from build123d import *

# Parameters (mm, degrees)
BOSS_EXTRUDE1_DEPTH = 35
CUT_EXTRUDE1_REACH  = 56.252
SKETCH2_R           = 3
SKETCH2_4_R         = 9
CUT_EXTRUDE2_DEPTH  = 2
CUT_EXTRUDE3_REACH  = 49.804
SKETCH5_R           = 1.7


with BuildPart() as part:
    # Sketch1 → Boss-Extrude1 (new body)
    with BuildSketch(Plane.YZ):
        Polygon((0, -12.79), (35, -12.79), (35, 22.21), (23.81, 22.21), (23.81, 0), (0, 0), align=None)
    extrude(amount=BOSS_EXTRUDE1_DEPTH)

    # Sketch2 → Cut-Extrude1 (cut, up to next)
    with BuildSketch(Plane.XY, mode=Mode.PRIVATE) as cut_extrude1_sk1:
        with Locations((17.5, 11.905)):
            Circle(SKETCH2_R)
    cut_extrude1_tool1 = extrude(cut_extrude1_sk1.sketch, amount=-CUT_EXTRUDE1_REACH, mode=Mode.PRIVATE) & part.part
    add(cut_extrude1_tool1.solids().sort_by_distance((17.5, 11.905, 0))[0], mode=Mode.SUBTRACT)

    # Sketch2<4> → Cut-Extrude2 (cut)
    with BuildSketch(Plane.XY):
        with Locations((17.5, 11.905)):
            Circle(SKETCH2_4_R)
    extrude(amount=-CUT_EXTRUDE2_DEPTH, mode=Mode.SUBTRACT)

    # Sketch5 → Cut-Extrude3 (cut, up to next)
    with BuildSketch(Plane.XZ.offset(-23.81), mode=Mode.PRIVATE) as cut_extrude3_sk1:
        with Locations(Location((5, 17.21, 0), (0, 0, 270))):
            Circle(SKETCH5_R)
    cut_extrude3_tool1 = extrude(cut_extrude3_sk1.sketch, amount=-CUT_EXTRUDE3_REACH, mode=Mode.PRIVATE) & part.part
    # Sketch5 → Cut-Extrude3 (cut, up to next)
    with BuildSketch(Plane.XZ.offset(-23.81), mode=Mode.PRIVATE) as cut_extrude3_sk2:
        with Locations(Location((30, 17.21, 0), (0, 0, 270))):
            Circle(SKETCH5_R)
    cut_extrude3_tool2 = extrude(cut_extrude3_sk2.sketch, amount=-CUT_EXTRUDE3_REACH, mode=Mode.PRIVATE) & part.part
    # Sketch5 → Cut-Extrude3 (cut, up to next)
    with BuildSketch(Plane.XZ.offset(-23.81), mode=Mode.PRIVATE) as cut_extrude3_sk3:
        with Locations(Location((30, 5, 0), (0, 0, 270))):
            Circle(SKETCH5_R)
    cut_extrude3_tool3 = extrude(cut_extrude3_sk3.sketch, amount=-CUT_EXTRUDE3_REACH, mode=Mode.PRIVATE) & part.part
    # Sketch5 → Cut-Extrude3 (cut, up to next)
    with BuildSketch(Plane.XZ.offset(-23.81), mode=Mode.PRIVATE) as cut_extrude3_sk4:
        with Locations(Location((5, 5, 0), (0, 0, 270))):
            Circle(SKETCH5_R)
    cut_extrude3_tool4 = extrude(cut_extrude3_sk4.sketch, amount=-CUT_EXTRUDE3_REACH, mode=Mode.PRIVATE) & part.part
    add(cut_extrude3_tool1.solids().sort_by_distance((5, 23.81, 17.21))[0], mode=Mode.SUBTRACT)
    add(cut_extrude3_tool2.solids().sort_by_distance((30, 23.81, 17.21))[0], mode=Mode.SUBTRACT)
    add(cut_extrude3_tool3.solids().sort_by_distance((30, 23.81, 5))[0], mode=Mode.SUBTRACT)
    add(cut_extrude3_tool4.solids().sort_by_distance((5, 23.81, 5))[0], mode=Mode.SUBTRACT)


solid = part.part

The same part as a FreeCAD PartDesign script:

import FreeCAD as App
import Part
import Sketcher

V = App.Vector

doc = App.newDocument("Part")
params = doc.addObject("Spreadsheet::Sheet", "Params")
for row, (alias, value) in enumerate([
    ("sketch1_width", "35 mm"),
    ("sketch1_width2", "11.19 mm"),
    ("sketch1_height", "22.21 mm"),
    ("pad1_length", "35 mm"),
    ("sketch2_diameter", "6 mm"),
    ("sketch3_diameter", "18 mm"),
    ("pocket2_length", "2 mm"),
    ("sketch4_diameter", "3.4 mm"),
    ("sketch5_diameter", "3.4 mm"),
    ("sketch6_diameter", "3.4 mm"),
    ("sketch7_diameter", "3.4 mm"),
], start=1):
    params.set(f"A{row}", alias)
    params.set(f"B{row}", "=" + value)
    params.setAlias(f"B{row}", alias)

body = doc.addObject("PartDesign::Body", "Body")

# Sketch on YZ plane
sketch1 = doc.addObject("Sketcher::SketchObject", "Sketch")
body.addObject(sketch1)
sketch1.AttachmentSupport = (doc.YZ_Plane, [""])
sketch1.MapMode = "FlatFace"
sketch1.addGeometry([
    Part.LineSegment(V(0, -12.79, 0), V(35, -12.79, 0)),  # 0
    Part.LineSegment(V(35, -12.79, 0), V(35, 22.21, 0)),  # 1
    Part.LineSegment(V(35, 22.21, 0), V(23.81, 22.21, 0)),  # 2
    Part.LineSegment(V(23.81, 22.21, 0), V(23.81, 0, 0)),  # 3
    Part.LineSegment(V(23.81, 0, 0), V(0, 0, 0)),  # 4
    Part.LineSegment(V(0, 0, 0), V(0, -12.79, 0)),  # 5
], False)
sketch1.addConstraint([
    Sketcher.Constraint("Coincident", 0, 2, 1, 1),
    Sketcher.Constraint("Coincident", 1, 2, 2, 1),
    Sketcher.Constraint("Coincident", 2, 2, 3, 1),
    Sketcher.Constraint("Coincident", 3, 2, 4, 1),
    Sketcher.Constraint("Coincident", 4, 2, 5, 1),
    Sketcher.Constraint("Coincident", 5, 2, 0, 1),
    Sketcher.Constraint("Horizontal", 0),
    Sketcher.Constraint("Vertical", 1),
    Sketcher.Constraint("Horizontal", 2),
    Sketcher.Constraint("Vertical", 3),
    Sketcher.Constraint("Horizontal", 4),
    Sketcher.Constraint("Vertical", 5),
    Sketcher.Constraint("Coincident", 4, 2, -1, 1),
    Sketcher.Constraint("Equal", 0, 1),
    Sketcher.Constraint("DistanceX", 0, 1, 0, 2, 35.0),
    Sketcher.Constraint("DistanceX", 2, 2, 2, 1, 11.19),
    Sketcher.Constraint("DistanceY", 3, 2, 3, 1, 22.21),
])
sketch1.setExpression("Constraints[14]", "Params.sketch1_width")
sketch1.setExpression("Constraints[15]", "Params.sketch1_width2")
sketch1.setExpression("Constraints[16]", "Params.sketch1_height")
pad1 = doc.addObject("PartDesign::Pad", "Pad")
body.addObject(pad1)
pad1.Profile = sketch1
pad1.setExpression("Length", "Params.pad1_length")

# Sketch on XY plane
sketch2 = doc.addObject("Sketcher::SketchObject", "Sketch001")
body.addObject(sketch2)
sketch2.AttachmentSupport = (doc.XY_Plane, [""])
sketch2.MapMode = "FlatFace"
sketch2.addGeometry(Part.Circle(V(17.5, 11.905, 0), V(0, 0, 1), 3), False)
sketch2.addConstraint([
    Sketcher.Constraint("Diameter", 0, 6.0),
    Sketcher.Constraint("DistanceX", -1, 1, 0, 3, 17.5),
    Sketcher.Constraint("DistanceY", -1, 1, 0, 3, 11.905),
])
sketch2.setExpression("Constraints[0]", "Params.sketch2_diameter")
pocket1 = doc.addObject("PartDesign::Pocket", "Pocket")
body.addObject(pocket1)
pocket1.Profile = sketch2
pocket1.Type = "UpToFirst"

# Sketch on XY plane
sketch3 = doc.addObject("Sketcher::SketchObject", "Sketch002")
body.addObject(sketch3)
sketch3.AttachmentSupport = (doc.XY_Plane, [""])
sketch3.MapMode = "FlatFace"
sketch3.addGeometry(Part.Circle(V(17.5, 11.905, 0), V(0, 0, 1), 9), False)
sketch3.addConstraint([
    Sketcher.Constraint("Diameter", 0, 18.0),
    Sketcher.Constraint("DistanceX", -1, 1, 0, 3, 17.5),
    Sketcher.Constraint("DistanceY", -1, 1, 0, 3, 11.905),
])
sketch3.setExpression("Constraints[0]", "Params.sketch3_diameter")
pocket2 = doc.addObject("PartDesign::Pocket", "Pocket001")
body.addObject(pocket2)
pocket2.Profile = sketch3
pocket2.setExpression("Length", "Params.pocket2_length")

# Sketch on XZ plane
sketch4 = doc.addObject("Sketcher::SketchObject", "Sketch003")
body.addObject(sketch4)
sketch4.AttachmentSupport = (doc.XZ_Plane, [""])
sketch4.MapMode = "FlatFace"
sketch4.AttachmentOffset = App.Placement(V(0, 0, -23.81), App.Rotation())
sketch4.addGeometry(Part.Circle(V(5, 17.21, 0), V(0, 0, 1), 1.7), False)
sketch4.addConstraint([
    Sketcher.Constraint("Diameter", 0, 3.4),
    Sketcher.Constraint("DistanceX", -1, 1, 0, 3, 5.0),
    Sketcher.Constraint("DistanceY", -1, 1, 0, 3, 17.21),
])
sketch4.setExpression("Constraints[0]", "Params.sketch4_diameter")
pocket3 = doc.addObject("PartDesign::Pocket", "Pocket002")
body.addObject(pocket3)
pocket3.Profile = sketch4
pocket3.Type = "UpToFirst"

# Sketch on XZ plane
sketch5 = doc.addObject("Sketcher::SketchObject", "Sketch004")
body.addObject(sketch5)
sketch5.AttachmentSupport = (doc.XZ_Plane, [""])
sketch5.MapMode = "FlatFace"
sketch5.AttachmentOffset = App.Placement(V(0, 0, -23.81), App.Rotation())
sketch5.addGeometry(Part.Circle(V(30, 17.21, 0), V(0, 0, 1), 1.7), False)
sketch5.addConstraint([
    Sketcher.Constraint("Diameter", 0, 3.4),
    Sketcher.Constraint("DistanceX", -1, 1, 0, 3, 30.0),
    Sketcher.Constraint("DistanceY", -1, 1, 0, 3, 17.21),
])
sketch5.setExpression("Constraints[0]", "Params.sketch5_diameter")
pocket4 = doc.addObject("PartDesign::Pocket", "Pocket003")
body.addObject(pocket4)
pocket4.Profile = sketch5
pocket4.Type = "UpToFirst"

# Sketch on XZ plane
sketch6 = doc.addObject("Sketcher::SketchObject", "Sketch005")
body.addObject(sketch6)
sketch6.AttachmentSupport = (doc.XZ_Plane, [""])
sketch6.MapMode = "FlatFace"
sketch6.AttachmentOffset = App.Placement(V(0, 0, -23.81), App.Rotation())
sketch6.addGeometry(Part.Circle(V(30, 5, 0), V(0, 0, 1), 1.7), False)
sketch6.addConstraint([
    Sketcher.Constraint("Diameter", 0, 3.4),
    Sketcher.Constraint("DistanceX", -1, 1, 0, 3, 30.0),
    Sketcher.Constraint("DistanceY", -1, 1, 0, 3, 5.0),
])
sketch6.setExpression("Constraints[0]", "Params.sketch6_diameter")
pocket5 = doc.addObject("PartDesign::Pocket", "Pocket004")
body.addObject(pocket5)
pocket5.Profile = sketch6
pocket5.Type = "UpToFirst"

# Sketch on XZ plane
sketch7 = doc.addObject("Sketcher::SketchObject", "Sketch006")
body.addObject(sketch7)
sketch7.AttachmentSupport = (doc.XZ_Plane, [""])
sketch7.MapMode = "FlatFace"
sketch7.AttachmentOffset = App.Placement(V(0, 0, -23.81), App.Rotation())
sketch7.addGeometry(Part.Circle(V(5, 5, 0), V(0, 0, 1), 1.7), False)
sketch7.addConstraint([
    Sketcher.Constraint("Diameter", 0, 3.4),
    Sketcher.Constraint("DistanceX", -1, 1, 0, 3, 5.0),
    Sketcher.Constraint("DistanceY", -1, 1, 0, 3, 5.0),
])
sketch7.setExpression("Constraints[0]", "Params.sketch7_diameter")
pocket6 = doc.addObject("PartDesign::Pocket", "Pocket005")
body.addObject(pocket6)
pocket6.Profile = sketch7
pocket6.Type = "UpToFirst"

doc.recompute()
